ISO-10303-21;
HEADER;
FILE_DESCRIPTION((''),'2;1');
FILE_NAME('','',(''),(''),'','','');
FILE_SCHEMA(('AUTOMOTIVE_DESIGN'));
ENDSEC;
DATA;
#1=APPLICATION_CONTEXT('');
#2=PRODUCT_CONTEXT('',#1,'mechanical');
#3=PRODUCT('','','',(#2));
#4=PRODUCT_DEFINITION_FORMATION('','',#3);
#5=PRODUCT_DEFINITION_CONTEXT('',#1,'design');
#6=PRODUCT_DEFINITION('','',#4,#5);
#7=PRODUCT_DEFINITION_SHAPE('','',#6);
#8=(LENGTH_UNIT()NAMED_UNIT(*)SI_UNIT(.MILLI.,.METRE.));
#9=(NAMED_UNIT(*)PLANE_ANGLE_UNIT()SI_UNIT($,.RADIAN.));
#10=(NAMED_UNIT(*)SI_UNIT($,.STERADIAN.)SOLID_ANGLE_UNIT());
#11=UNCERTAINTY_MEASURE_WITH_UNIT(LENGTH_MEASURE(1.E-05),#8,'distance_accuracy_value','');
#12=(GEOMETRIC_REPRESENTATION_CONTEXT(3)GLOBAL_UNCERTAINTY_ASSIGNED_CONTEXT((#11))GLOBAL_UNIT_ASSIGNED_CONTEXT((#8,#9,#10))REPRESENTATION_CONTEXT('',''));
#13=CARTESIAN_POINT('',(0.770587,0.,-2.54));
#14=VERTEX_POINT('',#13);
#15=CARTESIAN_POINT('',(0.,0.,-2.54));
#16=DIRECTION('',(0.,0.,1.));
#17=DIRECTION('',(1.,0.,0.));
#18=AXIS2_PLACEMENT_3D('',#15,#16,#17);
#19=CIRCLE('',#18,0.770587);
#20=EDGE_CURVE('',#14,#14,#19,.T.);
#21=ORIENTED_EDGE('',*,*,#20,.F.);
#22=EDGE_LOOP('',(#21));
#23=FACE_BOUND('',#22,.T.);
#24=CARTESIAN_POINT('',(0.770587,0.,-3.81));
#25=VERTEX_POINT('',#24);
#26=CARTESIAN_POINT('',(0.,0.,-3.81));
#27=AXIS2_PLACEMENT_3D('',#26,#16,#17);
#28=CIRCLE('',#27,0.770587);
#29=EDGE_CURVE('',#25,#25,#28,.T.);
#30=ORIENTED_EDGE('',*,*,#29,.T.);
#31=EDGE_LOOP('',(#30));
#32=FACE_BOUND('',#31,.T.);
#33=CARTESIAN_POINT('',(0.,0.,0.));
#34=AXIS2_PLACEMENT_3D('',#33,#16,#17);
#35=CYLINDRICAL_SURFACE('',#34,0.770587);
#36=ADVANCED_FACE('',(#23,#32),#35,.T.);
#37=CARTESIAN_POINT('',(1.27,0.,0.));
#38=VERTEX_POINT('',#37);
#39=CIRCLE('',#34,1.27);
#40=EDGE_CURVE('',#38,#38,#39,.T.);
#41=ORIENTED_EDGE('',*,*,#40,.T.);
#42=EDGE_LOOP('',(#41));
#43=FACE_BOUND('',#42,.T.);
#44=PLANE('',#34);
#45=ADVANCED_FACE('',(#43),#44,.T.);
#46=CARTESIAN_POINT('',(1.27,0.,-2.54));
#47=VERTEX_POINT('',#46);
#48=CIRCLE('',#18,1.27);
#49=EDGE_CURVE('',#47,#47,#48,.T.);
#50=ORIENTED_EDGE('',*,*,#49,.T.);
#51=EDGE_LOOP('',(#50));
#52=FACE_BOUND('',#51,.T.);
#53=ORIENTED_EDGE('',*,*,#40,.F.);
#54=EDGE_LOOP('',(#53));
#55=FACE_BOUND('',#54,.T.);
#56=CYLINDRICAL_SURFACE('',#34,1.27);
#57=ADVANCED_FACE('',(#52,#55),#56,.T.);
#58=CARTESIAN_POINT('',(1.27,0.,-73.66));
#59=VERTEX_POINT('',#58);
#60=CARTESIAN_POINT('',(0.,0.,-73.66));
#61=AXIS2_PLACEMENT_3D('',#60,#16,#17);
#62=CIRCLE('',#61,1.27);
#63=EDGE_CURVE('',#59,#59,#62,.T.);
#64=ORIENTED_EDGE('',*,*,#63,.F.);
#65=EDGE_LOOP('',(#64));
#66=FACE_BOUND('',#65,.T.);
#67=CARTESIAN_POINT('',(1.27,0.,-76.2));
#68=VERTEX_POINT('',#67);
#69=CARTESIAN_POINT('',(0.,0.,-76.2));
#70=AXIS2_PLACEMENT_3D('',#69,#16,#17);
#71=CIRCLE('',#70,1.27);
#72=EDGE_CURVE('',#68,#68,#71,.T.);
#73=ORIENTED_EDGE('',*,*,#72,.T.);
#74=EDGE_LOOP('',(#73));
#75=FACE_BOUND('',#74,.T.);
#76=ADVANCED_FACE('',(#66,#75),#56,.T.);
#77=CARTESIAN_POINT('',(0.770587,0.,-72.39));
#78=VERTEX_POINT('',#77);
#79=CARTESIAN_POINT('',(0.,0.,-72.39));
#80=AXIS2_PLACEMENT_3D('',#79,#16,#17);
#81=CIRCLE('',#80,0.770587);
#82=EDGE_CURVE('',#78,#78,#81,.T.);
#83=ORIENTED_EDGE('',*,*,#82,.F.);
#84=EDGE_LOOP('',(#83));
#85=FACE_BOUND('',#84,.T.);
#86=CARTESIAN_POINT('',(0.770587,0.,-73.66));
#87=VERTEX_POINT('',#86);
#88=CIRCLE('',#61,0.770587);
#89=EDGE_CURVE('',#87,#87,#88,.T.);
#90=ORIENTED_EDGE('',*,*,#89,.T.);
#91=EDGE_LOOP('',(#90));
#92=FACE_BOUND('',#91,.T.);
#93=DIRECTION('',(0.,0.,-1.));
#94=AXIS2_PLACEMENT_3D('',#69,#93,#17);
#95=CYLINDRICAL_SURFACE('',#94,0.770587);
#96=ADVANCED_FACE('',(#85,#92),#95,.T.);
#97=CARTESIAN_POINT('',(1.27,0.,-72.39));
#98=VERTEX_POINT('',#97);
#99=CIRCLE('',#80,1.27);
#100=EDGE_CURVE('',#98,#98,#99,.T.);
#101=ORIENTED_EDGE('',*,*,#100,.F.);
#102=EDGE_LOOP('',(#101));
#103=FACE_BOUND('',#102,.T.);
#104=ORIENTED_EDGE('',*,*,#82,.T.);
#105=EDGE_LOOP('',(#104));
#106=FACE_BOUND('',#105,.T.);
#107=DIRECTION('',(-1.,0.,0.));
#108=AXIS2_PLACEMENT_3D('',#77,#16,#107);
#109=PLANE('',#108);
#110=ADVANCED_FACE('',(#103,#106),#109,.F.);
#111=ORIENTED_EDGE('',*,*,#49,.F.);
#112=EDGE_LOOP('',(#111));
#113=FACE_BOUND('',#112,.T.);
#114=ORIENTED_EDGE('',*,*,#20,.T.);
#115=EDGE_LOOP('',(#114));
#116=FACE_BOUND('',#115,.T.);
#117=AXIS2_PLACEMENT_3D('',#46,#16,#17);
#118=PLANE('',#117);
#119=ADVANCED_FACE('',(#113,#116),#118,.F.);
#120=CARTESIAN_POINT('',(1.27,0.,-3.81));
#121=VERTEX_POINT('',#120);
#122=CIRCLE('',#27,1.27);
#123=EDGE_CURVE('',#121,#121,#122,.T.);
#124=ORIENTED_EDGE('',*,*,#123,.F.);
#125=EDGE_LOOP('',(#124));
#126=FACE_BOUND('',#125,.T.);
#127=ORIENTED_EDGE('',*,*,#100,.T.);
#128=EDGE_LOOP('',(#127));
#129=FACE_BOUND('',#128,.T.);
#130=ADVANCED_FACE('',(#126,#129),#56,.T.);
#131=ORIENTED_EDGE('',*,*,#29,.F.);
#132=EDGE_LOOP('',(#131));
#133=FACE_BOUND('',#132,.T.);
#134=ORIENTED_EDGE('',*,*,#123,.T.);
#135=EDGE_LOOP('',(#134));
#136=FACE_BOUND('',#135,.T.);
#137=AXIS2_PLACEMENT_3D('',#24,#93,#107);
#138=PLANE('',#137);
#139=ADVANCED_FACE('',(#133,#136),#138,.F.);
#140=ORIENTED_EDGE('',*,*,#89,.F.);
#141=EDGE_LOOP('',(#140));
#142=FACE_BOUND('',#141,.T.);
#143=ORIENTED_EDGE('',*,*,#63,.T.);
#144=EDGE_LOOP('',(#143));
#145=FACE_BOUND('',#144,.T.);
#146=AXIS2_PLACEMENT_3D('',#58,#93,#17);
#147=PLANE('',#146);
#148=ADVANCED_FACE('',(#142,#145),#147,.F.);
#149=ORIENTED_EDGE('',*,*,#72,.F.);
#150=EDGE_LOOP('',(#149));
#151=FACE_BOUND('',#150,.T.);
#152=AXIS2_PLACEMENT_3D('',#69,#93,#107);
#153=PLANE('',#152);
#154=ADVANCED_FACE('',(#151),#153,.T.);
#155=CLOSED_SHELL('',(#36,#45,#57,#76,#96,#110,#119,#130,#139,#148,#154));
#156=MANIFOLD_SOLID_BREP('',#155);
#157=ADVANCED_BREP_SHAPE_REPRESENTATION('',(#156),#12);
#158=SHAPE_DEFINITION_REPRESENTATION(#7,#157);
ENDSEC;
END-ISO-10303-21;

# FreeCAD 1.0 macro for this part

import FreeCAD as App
import Part
import Sketcher
from FreeCAD import Vector
Q = App.Units.Quantity

doc = App.newDocument("Part")
params = doc.addObject("Spreadsheet::Sheet", "Params")
for row, (alias, value) in enumerate([
    ("sketch1_height", "3 in"),
    ("sketch1_width", "0.05 in"),
    ("revolution_angle", "360 deg"),
    ("sketch2_height", "0.05 in"),
    ("groove_angle", "360 deg"),
], start=1):
    params.set(f"A{row}", alias)
    params.set(f"B{row}", "=" + value)
    params.setAlias(f"B{row}", alias)

body = doc.addObject("PartDesign::Body", "Body")

# Sketch on XZ plane
sketch1 = doc.addObject("Sketcher::SketchObject", "Sketch")
body.addObject(sketch1)
sketch1.AttachmentSupport = (doc.XZ_Plane, [""])
sketch1.MapMode = "FlatFace"
sketch1.addGeometry([
    Part.LineSegment(Vector(0, -76.2, 0), Vector(0, 0, 0)),
    Part.LineSegment(Vector(0, 0, 0), Vector(1.3, 0, 0)),
    Part.LineSegment(Vector(1.3, 0, 0), Vector(1.3, -76.2, 0)),
    Part.LineSegment(Vector(1.3, -76.2, 0), Vector(0, -76.2, 0)),
], False)
sketch1.addConstraint([
    Sketcher.Constraint("Coincident", 0, 2, 1, 1),
    Sketcher.Constraint("Coincident", 1, 2, 2, 1),
    Sketcher.Constraint("Coincident", 2, 2, 3, 1),
    Sketcher.Constraint("Coincident", 3, 2, 0, 1),
    Sketcher.Constraint("Vertical", 0),
    Sketcher.Constraint("Horizontal", 1),
    Sketcher.Constraint("Vertical", 2),
    Sketcher.Constraint("Horizontal", 3),
    Sketcher.Constraint("Coincident", 0, 2, -1, 1),
    Sketcher.Constraint("DistanceY", 0, 1, 0, 2, Q("3 in")),
    Sketcher.Constraint("DistanceX", 1, 1, 1, 2, Q("0.05 in")),
])
sketch1.setExpression("Constraints[9]", "Params.sketch1_height")
sketch1.setExpression("Constraints[10]", "Params.sketch1_width")
revolution = doc.addObject("PartDesign::Revolution", "Revolution")
body.addObject(revolution)
revolution.Profile = sketch1
revolution.ReferenceAxis = (sketch1, ["V_Axis"])
revolution.setExpression("Angle", "Params.revolution_angle")

# Sketch on XZ plane
sketch2 = doc.addObject("Sketcher::SketchObject", "Sketch001")
body.addObject(sketch2)
sketch2.AttachmentSupport = (doc.XZ_Plane, [""])
sketch2.MapMode = "FlatFace"
sketch2.addGeometry([
    Part.LineSegment(Vector(0.77, -3.81, 0), Vector(0.77, -2.54, 0)),
    Part.LineSegment(Vector(0.77, -2.54, 0), Vector(1.27, -2.54, 0)),
    Part.LineSegment(Vector(1.27, -2.54, 0), Vector(1.27, -3.81, 0)),
    Part.LineSegment(Vector(1.27, -3.81, 0), Vector(0.77, -3.81, 0)),
], False)
sketch2.addConstraint([
    Sketcher.Constraint("Coincident", 0, 2, 1, 1),
    Sketcher.Constraint("Coincident", 1, 2, 2, 1),
    Sketcher.Constraint("Coincident", 2, 2, 3, 1),
    Sketcher.Constraint("Coincident", 3, 2, 0, 1),
    Sketcher.Constraint("Vertical", 0),
    Sketcher.Constraint("Horizontal", 1),
    Sketcher.Constraint("Vertical", 2),
    Sketcher.Constraint("Horizontal", 3),
    Sketcher.Constraint("DistanceY", 0, 1, 0, 2, Q("0.05 in")),
    Sketcher.Constraint("DistanceY", 0, 2, -1, 1, Q("0.1 in")),
    Sketcher.Constraint("DistanceX", -1, 1, 1, 2, Q("0.05 in")),
    Sketcher.Constraint("DistanceX", 1, 1, 1, 2, 0.499413),
])
sketch2.setExpression("Constraints[8]", "Params.sketch2_height")
groove = doc.addObject("PartDesign::Groove", "Groove")
body.addObject(groove)
groove.Profile = sketch2
groove.ReferenceAxis = (sketch2, ["V_Axis"])
groove.setExpression("Angle", "Params.groove_angle")
doc.recompute()

datumplane = doc.addObject("PartDesign::Plane", "DatumPlane")
body.addObject(datumplane)
datumplane.AttachmentSupport = (doc.XY_Plane, [""])
datumplane.MapMode = "FlatFace"
datumplane.AttachmentOffset = App.Placement(Vector(0, 0, -1.5 * 25.4), App.Rotation())
mirrored = doc.addObject("PartDesign::Mirrored", "Mirrored")
body.addObject(mirrored)
mirrored.Originals = [groove]
mirrored.MirrorPlane = (datumplane, [""])
body.Tip = mirrored

doc.recompute()
